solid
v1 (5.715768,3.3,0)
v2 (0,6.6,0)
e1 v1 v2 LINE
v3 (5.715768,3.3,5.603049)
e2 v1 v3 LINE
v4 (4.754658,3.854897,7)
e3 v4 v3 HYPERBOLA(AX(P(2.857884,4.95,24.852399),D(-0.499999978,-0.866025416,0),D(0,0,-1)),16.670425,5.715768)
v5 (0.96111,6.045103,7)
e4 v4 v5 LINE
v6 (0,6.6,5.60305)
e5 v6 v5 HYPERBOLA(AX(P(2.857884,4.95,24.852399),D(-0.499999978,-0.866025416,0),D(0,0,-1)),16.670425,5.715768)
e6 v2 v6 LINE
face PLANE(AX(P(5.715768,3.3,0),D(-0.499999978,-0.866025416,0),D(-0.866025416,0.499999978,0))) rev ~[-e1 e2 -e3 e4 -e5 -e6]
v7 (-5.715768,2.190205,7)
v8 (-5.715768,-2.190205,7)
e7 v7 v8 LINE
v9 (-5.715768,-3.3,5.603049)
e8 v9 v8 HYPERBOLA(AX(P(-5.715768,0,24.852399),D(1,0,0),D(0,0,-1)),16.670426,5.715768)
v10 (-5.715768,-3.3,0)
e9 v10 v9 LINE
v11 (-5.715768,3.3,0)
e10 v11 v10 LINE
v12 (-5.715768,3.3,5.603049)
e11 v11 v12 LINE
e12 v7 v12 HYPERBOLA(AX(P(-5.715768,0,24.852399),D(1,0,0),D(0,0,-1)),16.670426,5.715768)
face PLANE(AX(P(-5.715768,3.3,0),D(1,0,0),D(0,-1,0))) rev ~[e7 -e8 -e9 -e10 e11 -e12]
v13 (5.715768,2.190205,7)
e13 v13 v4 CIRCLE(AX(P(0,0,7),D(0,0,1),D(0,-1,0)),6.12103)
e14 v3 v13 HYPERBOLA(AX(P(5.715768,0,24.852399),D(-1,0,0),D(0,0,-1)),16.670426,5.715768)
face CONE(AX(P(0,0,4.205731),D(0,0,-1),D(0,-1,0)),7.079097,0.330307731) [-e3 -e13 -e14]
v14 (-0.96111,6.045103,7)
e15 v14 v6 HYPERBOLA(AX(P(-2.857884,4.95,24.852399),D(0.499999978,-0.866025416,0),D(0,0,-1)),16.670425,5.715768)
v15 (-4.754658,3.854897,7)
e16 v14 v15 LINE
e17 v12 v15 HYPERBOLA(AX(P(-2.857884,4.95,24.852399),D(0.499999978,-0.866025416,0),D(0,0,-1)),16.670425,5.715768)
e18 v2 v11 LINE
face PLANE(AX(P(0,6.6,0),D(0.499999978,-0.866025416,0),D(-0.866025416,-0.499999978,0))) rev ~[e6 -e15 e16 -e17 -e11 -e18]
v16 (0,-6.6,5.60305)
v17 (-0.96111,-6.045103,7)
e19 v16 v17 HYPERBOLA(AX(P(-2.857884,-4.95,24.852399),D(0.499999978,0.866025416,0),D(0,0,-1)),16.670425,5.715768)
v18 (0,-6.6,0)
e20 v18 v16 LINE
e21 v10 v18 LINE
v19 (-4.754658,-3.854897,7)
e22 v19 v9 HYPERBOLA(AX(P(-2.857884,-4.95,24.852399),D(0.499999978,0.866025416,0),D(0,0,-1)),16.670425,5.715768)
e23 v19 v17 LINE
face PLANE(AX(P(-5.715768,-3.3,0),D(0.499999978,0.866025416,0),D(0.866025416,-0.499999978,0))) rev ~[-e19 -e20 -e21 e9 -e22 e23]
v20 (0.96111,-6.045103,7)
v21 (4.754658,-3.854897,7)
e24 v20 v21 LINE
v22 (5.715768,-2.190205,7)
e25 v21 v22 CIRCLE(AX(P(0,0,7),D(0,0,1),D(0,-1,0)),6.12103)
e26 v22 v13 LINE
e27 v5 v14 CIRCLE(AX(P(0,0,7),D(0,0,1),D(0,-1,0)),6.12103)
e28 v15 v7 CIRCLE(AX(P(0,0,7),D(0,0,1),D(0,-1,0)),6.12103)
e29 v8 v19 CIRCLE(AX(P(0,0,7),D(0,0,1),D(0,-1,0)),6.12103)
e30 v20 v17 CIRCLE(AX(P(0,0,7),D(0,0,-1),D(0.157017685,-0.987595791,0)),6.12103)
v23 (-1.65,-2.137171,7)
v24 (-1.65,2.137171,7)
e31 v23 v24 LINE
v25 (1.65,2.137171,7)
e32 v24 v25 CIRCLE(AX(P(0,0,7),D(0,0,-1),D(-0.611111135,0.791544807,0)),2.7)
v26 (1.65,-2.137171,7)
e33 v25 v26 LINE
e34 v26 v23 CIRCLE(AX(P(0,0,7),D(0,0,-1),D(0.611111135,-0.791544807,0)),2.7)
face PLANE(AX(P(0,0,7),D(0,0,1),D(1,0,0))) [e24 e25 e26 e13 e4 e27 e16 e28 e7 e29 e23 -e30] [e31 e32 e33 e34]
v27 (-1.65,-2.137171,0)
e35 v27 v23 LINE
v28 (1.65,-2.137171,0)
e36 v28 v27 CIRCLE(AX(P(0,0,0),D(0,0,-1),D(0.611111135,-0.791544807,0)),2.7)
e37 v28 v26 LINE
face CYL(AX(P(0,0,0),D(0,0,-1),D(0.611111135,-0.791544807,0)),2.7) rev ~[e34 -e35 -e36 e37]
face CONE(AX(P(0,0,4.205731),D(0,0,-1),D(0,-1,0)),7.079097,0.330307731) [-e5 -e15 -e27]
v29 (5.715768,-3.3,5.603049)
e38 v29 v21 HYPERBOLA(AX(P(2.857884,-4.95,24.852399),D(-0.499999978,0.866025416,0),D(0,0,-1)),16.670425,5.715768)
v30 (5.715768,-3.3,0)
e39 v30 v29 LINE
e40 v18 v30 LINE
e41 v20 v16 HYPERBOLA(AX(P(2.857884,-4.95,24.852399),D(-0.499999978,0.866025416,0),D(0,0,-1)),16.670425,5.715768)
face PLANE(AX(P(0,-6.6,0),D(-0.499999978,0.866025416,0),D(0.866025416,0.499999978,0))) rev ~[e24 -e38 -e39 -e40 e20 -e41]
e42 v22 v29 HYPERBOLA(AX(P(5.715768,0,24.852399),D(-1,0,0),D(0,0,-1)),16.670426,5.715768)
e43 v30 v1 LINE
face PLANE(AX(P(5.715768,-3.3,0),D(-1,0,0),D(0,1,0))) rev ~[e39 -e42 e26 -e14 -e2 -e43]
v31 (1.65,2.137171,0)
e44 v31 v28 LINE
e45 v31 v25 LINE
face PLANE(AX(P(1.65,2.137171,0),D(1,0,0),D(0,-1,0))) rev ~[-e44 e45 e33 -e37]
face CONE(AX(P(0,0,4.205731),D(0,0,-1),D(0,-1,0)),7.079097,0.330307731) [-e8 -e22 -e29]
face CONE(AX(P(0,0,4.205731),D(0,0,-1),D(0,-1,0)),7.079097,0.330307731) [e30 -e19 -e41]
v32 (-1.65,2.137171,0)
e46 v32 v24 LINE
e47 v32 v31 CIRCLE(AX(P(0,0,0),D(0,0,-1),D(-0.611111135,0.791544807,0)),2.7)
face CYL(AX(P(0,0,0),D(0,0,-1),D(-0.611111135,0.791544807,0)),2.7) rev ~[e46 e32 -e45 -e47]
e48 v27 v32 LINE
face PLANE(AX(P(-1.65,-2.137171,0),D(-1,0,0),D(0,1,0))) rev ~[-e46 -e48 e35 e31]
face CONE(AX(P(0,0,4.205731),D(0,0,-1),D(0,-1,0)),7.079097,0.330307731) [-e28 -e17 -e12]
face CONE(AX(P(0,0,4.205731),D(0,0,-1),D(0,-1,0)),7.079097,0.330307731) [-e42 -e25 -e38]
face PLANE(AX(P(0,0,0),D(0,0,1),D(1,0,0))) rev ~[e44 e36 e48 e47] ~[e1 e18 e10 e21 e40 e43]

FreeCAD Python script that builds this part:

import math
import FreeCAD as App
import Part
import Sketcher

V = App.Vector
Q = App.Units.Quantity


def add_polygon(sketch, points):
    """Adds a closed chain of lines whose ends are joined by coincident constraints."""
    first, n = sketch.GeometryCount, len(points)
    for a, b in zip(points, points[1:] + points[:1]):
        sketch.addGeometry(Part.LineSegment(App.Vector(*a, 0), App.Vector(*b, 0)), False)
    for i in range(n):
        sketch.addConstraint(Sketcher.Constraint("Coincident", first + i, 2, first + (i + 1) % n, 1))

doc = App.newDocument("Part")
params = doc.addObject("Spreadsheet::Sheet", "Params")
for row, (alias, value) in enumerate([
    ("sketch1_radius", "2.7 mm"),
    ("sketch1_height", "6.6 mm"),
    ("sketch1_length", "6.6 mm"),
    ("pad1_length", "7 mm"),
    ("groove_angle", "360 deg"),
], start=1):
    params.set(f"A{row}", alias)
    params.set(f"B{row}", "=" + value)
    params.setAlias(f"B{row}", alias)

body = doc.addObject("PartDesign::Body", "Body")

sketch1 = doc.addObject("Sketcher::SketchObject", "Sketch")
body.addObject(sketch1)
sketch1.AttachmentSupport = (doc.XY_Plane, [""])
sketch1.MapMode = "FlatFace"
add_polygon(sketch1, [(-5.7, -3.3), (0, -6.6), (5.7, -3.3), (5.7, 3.3), (0, 6.6), (-5.7, 3.3)])
sketch1.addGeometry(Part.ArcOfCircle(Part.Circle(V(0, 0, 0), V(0, 0, 1), 2.7), math.radians(52), math.radians(128)), False)
sketch1.addGeometry(Part.LineSegment(V(1.6, 2.1, 0), V(1.6, -2.1, 0)), False)
sketch1.addGeometry(Part.ArcOfCircle(Part.Circle(V(0, 0, 0), V(0, 0, 1), 2.7), math.radians(-128), math.radians(-52)), False)
sketch1.addGeometry(Part.LineSegment(V(-1.6, -2.1, 0), V(-1.6, 2.1, 0)), False)
sketch1.addConstraint([
    Sketcher.Constraint("Coincident", 6, 1, 7, 1),
    Sketcher.Constraint("Coincident", 7, 2, 8, 2),
    Sketcher.Constraint("Coincident", 8, 1, 9, 1),
    Sketcher.Constraint("Coincident", 9, 2, 6, 2),
    Sketcher.Constraint("Vertical", 2),
    Sketcher.Constraint("Vertical", 5),
    Sketcher.Constraint("Vertical", 7),
    Sketcher.Constraint("Vertical", 9),
    Sketcher.Constraint("Coincident", 6, 3, -1, 1),
    Sketcher.Constraint("Coincident", 8, 3, -1, 1),
    Sketcher.Constraint("Equal", 6, 8),
    Sketcher.Constraint("Symmetric", 0, 2, 3, 2, -1, 1),
    Sketcher.Constraint("Symmetric", 1, 2, 4, 2, -1, 1),
    Sketcher.Constraint("PointOnObject", 0, 2, -2),
    Sketcher.Constraint("Parallel", 0, 3),
    Sketcher.Constraint("Horizontal", 2, 2, 4, 2),
    Sketcher.Constraint("Horizontal", 7, 2, 8, 1),
    Sketcher.Constraint("Radius", 6, Q("2.7 mm")),
    Sketcher.Constraint("Angle", 0, Q("-29.999999 deg")),
    Sketcher.Constraint("DistanceY", 2, 1, 2, 2, Q("6.6 mm")),
    Sketcher.Constraint("Distance", 0, Q("6.6 mm")),
    Sketcher.Constraint("DistanceX", 8, 1, 7, 2, Q("3.3 mm")),
])
sketch1.setExpression("Constraints[23]", "Params.sketch1_radius")
sketch1.setExpression("Constraints[25]", "Params.sketch1_height")
sketch1.setExpression("Constraints[26]", "Params.sketch1_length")
pad1 = doc.addObject("PartDesign::Pad", "Pad")
body.addObject(pad1)
pad1.Profile = sketch1
pad1.setExpression("Length", "Params.pad1_length")

sketch2 = doc.addObject("Sketcher::SketchObject", "Sketch001")
body.addObject(sketch2)
sketch2.AttachmentSupport = (doc.YZ_Plane, [""])
sketch2.MapMode = "FlatFace"
add_polygon(sketch2, [(-7.1, 4.2), (-5.6, 8.6), (-7.1, 8.6)])
sketch2.addConstraint([
    Sketcher.Constraint("Horizontal", 1),
    Sketcher.Constraint("Vertical", 2),
    Sketcher.Constraint("DistanceY", 2, 2, 2, 1, Q("4.415299 mm")),
    Sketcher.Constraint("Distance", 0, Q("4.667618 mm")),
    Sketcher.Constraint("DistanceX", 0, 2, -1, 1, Q("5.565229 mm")),
    Sketcher.Constraint("DistanceY", -1, 1, 0, 2, Q("8.62103 mm")),
])
groove = doc.addObject("PartDesign::Groove", "Groove")
body.addObject(groove)
groove.Profile = sketch2
groove.ReferenceAxis = (sketch2, ["V_Axis"])
groove.setExpression("Angle", "Params.groove_angle")

doc.recompute()
